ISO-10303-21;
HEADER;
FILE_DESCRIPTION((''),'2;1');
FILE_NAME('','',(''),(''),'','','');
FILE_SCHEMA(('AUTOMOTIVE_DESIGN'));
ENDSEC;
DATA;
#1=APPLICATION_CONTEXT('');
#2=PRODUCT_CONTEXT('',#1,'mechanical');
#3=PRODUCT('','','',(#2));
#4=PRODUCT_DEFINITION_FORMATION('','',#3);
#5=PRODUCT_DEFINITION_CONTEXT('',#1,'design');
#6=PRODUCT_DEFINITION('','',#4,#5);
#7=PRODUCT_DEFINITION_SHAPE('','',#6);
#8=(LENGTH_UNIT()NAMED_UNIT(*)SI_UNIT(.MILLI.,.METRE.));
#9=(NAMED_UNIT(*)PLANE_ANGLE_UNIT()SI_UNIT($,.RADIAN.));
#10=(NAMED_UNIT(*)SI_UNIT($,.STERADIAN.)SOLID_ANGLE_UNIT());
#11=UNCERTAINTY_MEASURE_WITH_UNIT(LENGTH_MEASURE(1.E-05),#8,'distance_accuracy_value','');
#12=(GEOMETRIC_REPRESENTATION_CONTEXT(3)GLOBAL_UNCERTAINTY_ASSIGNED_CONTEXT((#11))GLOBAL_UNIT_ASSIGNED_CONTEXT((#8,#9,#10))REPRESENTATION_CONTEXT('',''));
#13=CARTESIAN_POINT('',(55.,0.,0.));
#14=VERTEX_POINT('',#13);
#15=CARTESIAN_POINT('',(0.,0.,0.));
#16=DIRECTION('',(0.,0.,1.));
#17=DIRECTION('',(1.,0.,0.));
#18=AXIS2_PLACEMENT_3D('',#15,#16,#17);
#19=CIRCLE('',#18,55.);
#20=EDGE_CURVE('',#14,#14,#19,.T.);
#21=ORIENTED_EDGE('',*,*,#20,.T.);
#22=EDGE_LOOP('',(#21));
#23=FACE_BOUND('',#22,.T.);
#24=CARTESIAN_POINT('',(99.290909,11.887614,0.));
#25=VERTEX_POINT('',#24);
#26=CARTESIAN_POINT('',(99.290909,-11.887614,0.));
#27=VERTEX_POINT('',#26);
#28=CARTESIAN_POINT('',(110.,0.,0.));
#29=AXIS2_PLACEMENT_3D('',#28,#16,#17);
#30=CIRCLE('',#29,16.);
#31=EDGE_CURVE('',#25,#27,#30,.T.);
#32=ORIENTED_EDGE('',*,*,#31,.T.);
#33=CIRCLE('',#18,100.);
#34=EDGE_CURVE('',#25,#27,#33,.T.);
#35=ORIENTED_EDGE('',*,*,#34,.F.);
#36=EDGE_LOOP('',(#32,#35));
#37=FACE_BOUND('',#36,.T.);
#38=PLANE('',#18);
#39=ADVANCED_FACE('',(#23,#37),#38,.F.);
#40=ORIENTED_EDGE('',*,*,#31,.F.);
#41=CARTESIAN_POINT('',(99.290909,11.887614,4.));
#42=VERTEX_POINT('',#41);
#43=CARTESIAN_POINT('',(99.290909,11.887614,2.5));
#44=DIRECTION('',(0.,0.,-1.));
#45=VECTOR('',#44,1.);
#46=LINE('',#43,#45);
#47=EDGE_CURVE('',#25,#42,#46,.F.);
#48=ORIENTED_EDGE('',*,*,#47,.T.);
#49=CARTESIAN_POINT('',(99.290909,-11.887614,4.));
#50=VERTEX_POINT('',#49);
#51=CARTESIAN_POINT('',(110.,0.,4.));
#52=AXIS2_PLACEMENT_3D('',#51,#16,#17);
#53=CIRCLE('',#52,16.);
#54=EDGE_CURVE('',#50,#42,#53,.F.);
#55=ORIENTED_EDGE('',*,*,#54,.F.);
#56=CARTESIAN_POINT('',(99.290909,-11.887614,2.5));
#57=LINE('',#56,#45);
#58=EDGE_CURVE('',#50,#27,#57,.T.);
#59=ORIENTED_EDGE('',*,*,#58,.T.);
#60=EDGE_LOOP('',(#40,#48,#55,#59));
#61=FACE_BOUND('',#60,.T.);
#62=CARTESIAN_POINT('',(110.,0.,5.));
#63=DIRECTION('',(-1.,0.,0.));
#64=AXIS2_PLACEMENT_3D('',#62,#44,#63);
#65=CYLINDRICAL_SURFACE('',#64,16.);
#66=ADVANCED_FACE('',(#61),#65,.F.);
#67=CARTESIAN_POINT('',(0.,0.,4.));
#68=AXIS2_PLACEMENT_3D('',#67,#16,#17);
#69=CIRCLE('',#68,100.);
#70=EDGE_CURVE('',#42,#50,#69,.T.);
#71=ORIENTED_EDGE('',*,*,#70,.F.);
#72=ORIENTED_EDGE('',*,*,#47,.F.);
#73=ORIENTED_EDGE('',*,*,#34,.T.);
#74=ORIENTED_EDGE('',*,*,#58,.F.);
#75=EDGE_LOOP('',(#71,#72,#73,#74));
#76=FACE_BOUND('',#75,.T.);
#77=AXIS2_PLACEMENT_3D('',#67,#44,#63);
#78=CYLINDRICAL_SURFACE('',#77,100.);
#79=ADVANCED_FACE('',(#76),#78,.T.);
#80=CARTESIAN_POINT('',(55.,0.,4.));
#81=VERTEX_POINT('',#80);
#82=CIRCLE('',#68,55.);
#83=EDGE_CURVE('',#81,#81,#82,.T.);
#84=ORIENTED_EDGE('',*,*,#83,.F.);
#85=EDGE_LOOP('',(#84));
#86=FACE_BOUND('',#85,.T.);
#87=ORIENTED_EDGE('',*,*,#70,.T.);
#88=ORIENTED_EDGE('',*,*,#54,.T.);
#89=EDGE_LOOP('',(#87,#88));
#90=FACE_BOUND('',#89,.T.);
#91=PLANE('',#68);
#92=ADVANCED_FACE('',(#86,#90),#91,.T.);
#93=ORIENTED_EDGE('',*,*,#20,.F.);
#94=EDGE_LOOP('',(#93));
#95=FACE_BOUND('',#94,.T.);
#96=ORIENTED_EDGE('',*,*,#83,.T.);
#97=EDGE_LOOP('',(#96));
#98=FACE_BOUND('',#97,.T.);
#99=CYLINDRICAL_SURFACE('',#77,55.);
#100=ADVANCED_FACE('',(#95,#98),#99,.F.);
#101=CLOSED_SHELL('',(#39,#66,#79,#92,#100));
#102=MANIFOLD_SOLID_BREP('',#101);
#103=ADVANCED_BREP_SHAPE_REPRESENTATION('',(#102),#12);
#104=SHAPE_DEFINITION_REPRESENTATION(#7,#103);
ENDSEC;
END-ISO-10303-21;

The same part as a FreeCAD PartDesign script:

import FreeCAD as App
import Part
import Sketcher
from FreeCAD import Vector

doc = App.newDocument("Part")
body = doc.addObject("PartDesign::Body", "Body")

sketch1 = doc.addObject("Sketcher::SketchObject", "Sketch")
body.addObject(sketch1)
sketch1.AttachmentSupport = (doc.XY_Plane, [""])
sketch1.MapMode = "FlatFace"
sketch1.addGeometry(Part.Circle(Vector(0, 0, 0), Vector(0, 0, 1), 100), False)
sketch1.addGeometry(Part.Circle(Vector(0, 0, 0), Vector(0, 0, 1), 55), False)
sketch1.addConstraint(Sketcher.Constraint("Coincident", 0, 3, -1, 1))
sketch1.addConstraint(Sketcher.Constraint("Coincident", 1, 3, -1, 1))
sketch1.addConstraint(Sketcher.Constraint("Diameter", 0, 200.0))
sketch1.addConstraint(Sketcher.Constraint("Diameter", 1, 110.0))
pad1 = doc.addObject("PartDesign::Pad", "Pad")
body.addObject(pad1)
pad1.Profile = sketch1
pad1.Length = 4

sketch2 = doc.addObject("Sketcher::SketchObject", "Sketch001")
body.addObject(sketch2)
sketch2.AttachmentSupport = (doc.XY_Plane, [""])
sketch2.MapMode = "FlatFace"
sketch2.addGeometry(Part.Circle(Vector(110, 0, 0), Vector(0, 0, 1), 16), False)
sketch2.addConstraint(Sketcher.Constraint("PointOnObject", 0, 3, -1))
sketch2.addConstraint(Sketcher.Constraint("Diameter", 0, 32.0))
sketch2.addConstraint(Sketcher.Constraint("DistanceX", -1, 1, 0, 3, 110.0))
pocket1 = doc.addObject("PartDesign::Pocket", "Pocket")
body.addObject(pocket1)
pocket1.Profile = sketch2
pocket1.Length = 5
pocket1.Reversed = True

doc.recompute()
